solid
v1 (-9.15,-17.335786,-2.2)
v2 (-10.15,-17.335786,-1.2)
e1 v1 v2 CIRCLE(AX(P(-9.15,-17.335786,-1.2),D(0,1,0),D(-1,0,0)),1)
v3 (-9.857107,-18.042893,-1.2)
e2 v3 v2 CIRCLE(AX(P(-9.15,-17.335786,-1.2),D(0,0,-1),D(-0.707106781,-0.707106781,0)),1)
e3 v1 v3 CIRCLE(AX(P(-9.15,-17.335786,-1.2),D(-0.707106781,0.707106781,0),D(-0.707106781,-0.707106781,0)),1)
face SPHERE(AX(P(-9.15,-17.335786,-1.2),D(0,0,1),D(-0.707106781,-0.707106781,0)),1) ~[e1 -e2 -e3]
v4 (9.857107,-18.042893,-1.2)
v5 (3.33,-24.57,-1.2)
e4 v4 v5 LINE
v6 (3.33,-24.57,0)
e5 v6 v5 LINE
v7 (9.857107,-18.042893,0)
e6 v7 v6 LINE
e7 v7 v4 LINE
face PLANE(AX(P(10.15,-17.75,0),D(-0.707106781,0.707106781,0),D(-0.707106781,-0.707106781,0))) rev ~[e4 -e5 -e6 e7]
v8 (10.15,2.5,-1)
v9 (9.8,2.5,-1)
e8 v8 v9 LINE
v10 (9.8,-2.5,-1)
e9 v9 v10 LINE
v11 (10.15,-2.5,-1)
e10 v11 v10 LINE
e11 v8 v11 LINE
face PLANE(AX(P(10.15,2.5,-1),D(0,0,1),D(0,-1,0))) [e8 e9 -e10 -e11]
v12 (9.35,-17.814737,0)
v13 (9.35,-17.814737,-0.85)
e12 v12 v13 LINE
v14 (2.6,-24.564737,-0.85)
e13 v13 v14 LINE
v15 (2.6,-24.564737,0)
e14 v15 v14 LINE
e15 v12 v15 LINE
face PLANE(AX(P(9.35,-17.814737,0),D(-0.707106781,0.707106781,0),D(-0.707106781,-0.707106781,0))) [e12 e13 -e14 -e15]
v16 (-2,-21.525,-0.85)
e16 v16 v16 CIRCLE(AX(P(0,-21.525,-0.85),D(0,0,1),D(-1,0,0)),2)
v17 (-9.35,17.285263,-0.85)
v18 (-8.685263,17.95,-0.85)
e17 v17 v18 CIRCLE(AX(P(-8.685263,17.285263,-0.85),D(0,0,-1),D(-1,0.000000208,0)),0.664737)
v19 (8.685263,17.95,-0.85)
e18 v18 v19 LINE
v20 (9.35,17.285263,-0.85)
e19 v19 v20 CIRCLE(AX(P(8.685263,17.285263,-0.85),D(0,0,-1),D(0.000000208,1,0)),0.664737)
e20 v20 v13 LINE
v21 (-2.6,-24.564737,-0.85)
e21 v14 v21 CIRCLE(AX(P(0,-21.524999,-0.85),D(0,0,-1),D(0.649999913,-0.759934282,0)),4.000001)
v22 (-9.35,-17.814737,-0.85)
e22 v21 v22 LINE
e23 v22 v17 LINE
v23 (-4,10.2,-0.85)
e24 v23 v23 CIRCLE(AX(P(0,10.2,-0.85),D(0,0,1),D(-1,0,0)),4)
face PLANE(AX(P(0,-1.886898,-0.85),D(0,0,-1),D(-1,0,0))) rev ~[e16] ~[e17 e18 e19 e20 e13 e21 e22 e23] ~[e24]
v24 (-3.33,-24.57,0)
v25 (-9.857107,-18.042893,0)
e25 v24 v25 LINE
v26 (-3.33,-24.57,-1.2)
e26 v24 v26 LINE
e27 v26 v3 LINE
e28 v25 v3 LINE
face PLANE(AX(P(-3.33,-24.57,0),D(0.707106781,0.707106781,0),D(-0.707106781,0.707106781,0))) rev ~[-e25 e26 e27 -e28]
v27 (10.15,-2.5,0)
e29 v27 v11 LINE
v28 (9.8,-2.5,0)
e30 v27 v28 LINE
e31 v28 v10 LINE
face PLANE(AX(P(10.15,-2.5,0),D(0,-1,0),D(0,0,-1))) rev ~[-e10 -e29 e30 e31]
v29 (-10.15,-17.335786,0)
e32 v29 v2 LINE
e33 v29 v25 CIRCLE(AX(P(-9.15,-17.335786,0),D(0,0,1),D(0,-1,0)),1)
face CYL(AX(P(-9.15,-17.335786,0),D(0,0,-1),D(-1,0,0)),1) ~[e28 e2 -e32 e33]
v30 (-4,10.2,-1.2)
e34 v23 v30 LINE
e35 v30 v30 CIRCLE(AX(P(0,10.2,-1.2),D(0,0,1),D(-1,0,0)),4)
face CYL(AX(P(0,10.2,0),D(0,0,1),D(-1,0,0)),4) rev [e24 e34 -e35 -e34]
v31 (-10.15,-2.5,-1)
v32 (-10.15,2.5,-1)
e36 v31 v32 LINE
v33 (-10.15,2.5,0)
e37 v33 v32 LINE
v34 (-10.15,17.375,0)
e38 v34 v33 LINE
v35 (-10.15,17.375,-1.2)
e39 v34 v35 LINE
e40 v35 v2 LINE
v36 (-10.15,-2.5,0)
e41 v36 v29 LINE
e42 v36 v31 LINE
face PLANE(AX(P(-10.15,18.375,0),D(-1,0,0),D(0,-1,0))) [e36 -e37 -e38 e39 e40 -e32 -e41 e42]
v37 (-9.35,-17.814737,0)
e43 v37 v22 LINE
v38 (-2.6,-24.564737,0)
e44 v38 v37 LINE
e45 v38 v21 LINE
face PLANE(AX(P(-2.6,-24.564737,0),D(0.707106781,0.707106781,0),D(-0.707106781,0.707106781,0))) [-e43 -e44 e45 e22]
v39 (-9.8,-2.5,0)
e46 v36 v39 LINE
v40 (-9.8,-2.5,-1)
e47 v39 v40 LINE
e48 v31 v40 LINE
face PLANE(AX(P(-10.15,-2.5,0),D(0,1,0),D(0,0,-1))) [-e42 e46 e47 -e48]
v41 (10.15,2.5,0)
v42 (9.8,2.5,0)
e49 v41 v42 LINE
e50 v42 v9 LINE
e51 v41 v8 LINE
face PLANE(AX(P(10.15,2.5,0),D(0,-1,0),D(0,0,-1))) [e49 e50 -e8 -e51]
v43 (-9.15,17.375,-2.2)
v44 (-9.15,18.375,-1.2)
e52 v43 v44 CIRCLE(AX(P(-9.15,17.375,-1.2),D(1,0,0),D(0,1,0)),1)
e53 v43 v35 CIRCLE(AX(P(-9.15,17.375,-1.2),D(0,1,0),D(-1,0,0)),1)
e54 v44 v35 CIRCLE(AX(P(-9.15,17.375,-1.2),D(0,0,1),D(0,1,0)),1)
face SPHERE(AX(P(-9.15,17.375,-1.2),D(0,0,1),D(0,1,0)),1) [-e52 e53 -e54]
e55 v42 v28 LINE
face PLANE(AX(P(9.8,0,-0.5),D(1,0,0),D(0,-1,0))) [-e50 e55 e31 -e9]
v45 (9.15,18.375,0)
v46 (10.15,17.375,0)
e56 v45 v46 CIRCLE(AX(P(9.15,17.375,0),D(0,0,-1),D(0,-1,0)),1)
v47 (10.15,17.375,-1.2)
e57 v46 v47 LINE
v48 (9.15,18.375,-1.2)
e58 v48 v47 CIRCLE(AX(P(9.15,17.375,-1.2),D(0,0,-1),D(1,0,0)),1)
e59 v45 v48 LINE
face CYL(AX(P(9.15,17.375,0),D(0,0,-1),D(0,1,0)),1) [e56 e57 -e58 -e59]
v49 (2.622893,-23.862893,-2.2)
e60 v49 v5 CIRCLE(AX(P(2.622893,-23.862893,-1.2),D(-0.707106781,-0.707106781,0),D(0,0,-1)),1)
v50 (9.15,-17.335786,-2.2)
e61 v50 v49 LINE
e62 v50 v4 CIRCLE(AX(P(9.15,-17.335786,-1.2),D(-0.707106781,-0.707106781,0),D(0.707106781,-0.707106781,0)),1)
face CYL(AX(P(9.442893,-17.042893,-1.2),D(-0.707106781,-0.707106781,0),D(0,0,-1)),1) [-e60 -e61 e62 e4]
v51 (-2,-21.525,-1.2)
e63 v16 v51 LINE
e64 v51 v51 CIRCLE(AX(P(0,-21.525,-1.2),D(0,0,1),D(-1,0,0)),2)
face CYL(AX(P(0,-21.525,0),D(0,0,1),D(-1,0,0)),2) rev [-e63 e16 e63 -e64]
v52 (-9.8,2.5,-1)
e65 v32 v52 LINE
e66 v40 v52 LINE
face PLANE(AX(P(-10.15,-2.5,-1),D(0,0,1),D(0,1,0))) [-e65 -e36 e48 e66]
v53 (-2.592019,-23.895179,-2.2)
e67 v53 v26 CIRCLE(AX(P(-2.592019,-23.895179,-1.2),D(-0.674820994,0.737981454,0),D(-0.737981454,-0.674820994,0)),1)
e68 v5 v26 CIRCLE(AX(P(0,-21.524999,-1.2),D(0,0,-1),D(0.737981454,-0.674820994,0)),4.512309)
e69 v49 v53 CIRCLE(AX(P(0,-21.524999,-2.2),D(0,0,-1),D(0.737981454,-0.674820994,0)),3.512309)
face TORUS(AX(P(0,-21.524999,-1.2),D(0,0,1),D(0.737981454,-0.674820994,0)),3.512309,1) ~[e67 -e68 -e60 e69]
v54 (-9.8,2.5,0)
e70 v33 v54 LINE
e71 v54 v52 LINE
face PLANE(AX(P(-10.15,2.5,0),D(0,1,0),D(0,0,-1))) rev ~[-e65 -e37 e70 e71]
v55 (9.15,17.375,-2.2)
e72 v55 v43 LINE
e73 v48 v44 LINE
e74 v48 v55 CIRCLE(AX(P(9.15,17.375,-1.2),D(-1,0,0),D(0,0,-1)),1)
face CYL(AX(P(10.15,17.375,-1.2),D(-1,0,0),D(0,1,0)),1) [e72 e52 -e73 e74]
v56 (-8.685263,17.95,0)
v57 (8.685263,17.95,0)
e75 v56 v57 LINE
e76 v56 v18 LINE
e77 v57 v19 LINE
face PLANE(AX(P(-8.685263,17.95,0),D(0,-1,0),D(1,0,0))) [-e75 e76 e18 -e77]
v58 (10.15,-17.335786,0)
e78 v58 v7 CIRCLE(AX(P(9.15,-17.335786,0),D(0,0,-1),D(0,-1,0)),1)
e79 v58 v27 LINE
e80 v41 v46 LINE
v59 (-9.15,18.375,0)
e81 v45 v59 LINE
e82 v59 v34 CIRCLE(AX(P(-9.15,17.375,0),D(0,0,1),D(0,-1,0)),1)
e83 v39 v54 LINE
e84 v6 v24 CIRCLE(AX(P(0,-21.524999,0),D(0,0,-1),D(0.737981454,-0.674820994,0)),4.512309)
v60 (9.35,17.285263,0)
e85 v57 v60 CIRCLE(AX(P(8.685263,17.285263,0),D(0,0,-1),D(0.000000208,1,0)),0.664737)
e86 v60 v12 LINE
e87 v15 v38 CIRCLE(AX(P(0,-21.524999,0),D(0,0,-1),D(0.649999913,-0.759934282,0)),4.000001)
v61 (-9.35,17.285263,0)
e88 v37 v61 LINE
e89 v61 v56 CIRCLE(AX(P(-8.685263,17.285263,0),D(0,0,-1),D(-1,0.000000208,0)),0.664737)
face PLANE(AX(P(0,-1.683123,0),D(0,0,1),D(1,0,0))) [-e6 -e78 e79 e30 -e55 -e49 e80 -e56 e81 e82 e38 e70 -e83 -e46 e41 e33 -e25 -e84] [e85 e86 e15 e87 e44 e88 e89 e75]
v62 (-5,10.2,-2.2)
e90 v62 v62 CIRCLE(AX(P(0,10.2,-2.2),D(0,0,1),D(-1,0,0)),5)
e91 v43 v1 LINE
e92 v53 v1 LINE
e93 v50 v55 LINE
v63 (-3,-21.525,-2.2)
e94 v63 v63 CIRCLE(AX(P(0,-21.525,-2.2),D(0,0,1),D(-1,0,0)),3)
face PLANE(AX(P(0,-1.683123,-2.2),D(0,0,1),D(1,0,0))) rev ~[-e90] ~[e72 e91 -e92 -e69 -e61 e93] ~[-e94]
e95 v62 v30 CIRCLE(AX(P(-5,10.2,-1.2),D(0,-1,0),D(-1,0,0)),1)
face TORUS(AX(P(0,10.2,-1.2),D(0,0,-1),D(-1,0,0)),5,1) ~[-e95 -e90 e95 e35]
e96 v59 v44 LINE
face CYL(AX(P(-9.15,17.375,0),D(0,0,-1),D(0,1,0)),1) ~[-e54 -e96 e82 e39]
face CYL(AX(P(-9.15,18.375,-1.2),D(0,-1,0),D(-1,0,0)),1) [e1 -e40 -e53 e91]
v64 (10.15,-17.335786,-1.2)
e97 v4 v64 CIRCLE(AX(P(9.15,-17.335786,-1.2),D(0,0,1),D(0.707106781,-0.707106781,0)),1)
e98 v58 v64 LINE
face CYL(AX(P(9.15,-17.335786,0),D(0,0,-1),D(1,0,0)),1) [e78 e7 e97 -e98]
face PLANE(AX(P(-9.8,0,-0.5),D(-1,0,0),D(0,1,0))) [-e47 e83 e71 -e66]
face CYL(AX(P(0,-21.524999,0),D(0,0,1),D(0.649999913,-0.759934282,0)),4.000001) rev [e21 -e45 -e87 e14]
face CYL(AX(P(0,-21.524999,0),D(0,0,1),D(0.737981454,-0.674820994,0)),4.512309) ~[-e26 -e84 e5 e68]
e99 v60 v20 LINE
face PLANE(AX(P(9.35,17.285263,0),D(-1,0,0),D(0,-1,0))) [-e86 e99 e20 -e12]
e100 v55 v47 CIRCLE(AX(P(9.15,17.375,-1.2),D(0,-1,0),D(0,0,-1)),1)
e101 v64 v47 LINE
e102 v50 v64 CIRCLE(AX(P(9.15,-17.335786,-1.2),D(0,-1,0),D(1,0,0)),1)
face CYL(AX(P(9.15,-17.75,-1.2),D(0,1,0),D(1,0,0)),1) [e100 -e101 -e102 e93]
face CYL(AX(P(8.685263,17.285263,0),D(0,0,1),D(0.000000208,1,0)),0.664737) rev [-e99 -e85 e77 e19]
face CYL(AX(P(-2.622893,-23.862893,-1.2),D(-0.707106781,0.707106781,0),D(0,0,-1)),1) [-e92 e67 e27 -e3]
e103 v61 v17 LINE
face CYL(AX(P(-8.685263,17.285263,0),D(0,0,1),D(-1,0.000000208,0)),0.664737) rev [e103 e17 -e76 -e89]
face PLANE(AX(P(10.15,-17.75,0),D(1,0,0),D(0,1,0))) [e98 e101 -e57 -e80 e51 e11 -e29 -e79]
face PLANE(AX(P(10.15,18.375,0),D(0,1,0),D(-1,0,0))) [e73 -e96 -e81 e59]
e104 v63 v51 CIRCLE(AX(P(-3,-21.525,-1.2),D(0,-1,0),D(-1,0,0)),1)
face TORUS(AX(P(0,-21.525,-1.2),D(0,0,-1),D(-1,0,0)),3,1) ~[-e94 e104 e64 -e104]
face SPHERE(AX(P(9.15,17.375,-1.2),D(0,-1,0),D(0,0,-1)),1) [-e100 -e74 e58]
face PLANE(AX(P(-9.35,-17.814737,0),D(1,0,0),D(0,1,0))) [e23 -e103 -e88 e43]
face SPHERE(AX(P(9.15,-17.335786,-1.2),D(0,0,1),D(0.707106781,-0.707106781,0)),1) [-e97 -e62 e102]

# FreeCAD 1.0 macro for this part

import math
import FreeCAD as App
import Part
import Sketcher
from FreeCAD import Vector


def edges_at(feature, points):
    """Names of the edges that pass closest to the given points."""
    edges = feature.Shape.Edges
    near = lambda p: min(range(len(edges)), key=lambda i: edges[i].distToShape(Part.Vertex(*p))[0])
    return sorted({f"Edge{near(p) + 1}" for p in points})

doc = App.newDocument("Part")
body = doc.addObject("PartDesign::Body", "Body")

# Sketch on XY plane
sketch1 = body.newObject("Sketcher::SketchObject", "Sketch")
sketch1.AttachmentSupport = (doc.getObject("XY_Plane"), [""])
sketch1.MapMode = "FlatFace"
sketch1.addGeometry([
    Part.LineSegment(Vector(10.2, 18.4, 0), Vector(-10.2, 18.4, 0)),  # 0
    Part.LineSegment(Vector(-10.2, 18.4, 0), Vector(-10.2, -17.8, 0)),  # 1
    Part.LineSegment(Vector(-10.2, -17.8, 0), Vector(-3.3, -24.6, 0)),  # 2
    Part.ArcOfCircle(Part.Circle(Vector(0, -21.5, 0), Vector(0, 0, 1), 4.5), math.radians(-138), math.radians(-42)),  # 3
    Part.LineSegment(Vector(3.3, -24.6, 0), Vector(10.2, -17.8, 0)),  # 4
    Part.LineSegment(Vector(10.2, -17.8, 0), Vector(10.2, 18.4, 0)),  # 5
], False)
sketch1.addConstraint([
    Sketcher.Constraint("Coincident", 0, 2, 1, 1),
    Sketcher.Constraint("Coincident", 1, 2, 2, 1),
    Sketcher.Constraint("Coincident", 2, 2, 3, 1),
    Sketcher.Constraint("Coincident", 3, 2, 4, 1),
    Sketcher.Constraint("Coincident", 4, 2, 5, 1),
    Sketcher.Constraint("Coincident", 5, 2, 0, 1),
    Sketcher.Constraint("Horizontal", 0),
    Sketcher.Constraint("Vertical", 1),
    Sketcher.Constraint("Vertical", 5),
    Sketcher.Constraint("Symmetric", 2, 2, 3, 2, -2),
    Sketcher.Constraint("Symmetric", 1, 2, 4, 2, -2),
    Sketcher.Constraint("Perpendicular", 2, 4),
    Sketcher.Constraint("DistanceX", 0, 2, 0, 1, 20.3),
    Sketcher.Constraint("DistanceY", 3, 3, 0, 2, 39.899999),
    Sketcher.Constraint("DistanceY", 1, 2, 1, 1, 36.125),
    Sketcher.Constraint("DistanceY", 1, 2, -1, 1, 17.75),
    Sketcher.Constraint("DistanceX", 2, 2, -1, 1, 3.33),
])
pad1 = body.newObject("PartDesign::Pad", "Pad")
pad1.Profile = sketch1
pad1.Length = 2.2

# Sketch on XY plane
sketch2 = body.newObject("Sketcher::SketchObject", "Sketch001")
sketch2.AttachmentSupport = (doc.getObject("XY_Plane"), [""])
sketch2.MapMode = "FlatFace"
sketch2.addGeometry(Part.Circle(Vector(0, 10.2, 0), Vector(0, 0, 1), 4), False)
sketch2.addConstraint([
    Sketcher.Constraint("PointOnObject", 0, 3, -2),
    Sketcher.Constraint("Diameter", 0, 8.0),
    Sketcher.Constraint("DistanceY", -1, 1, 0, 3, 10.2),
])
pocket1 = body.newObject("PartDesign::Pocket", "Pocket")
pocket1.Profile = sketch2
pocket1.Length = 5
pocket1.Reversed = True

# Sketch on XY plane
sketch3 = body.newObject("Sketcher::SketchObject", "Sketch002")
sketch3.AttachmentSupport = (doc.getObject("XY_Plane"), [""])
sketch3.MapMode = "FlatFace"
sketch3.addGeometry(Part.Circle(Vector(0, -21.5, 0), Vector(0, 0, 1), 2), False)
sketch3.addConstraint([
    Sketcher.Constraint("PointOnObject", 0, 3, -2),
    Sketcher.Constraint("Diameter", 0, 4.0),
    Sketcher.Constraint("DistanceY", 0, 3, -1, 1, 21.525),
])
pocket2 = body.newObject("PartDesign::Pocket", "Pocket001")
pocket2.Profile = sketch3
pocket2.Length = 5
pocket2.Reversed = True

# Sketch on XY plane
sketch4 = body.newObject("Sketcher::SketchObject", "Sketch003")
sketch4.AttachmentSupport = (doc.getObject("XY_Plane"), [""])
sketch4.MapMode = "FlatFace"
sketch4.addGeometry([
    Part.LineSegment(Vector(-9.3, 17.3, 0), Vector(-9.3, -17.8, 0)),  # 0
    Part.LineSegment(Vector(-9.3, -17.8, 0), Vector(-2.6, -24.6, 0)),  # 1
    Part.ArcOfCircle(Part.Circle(Vector(0, -21.5, 0), Vector(0, 0, 1), 4), math.radians(-131), math.radians(-49)),  # 2
    Part.LineSegment(Vector(2.6, -24.6, 0), Vector(9.3, -17.8, 0)),  # 3
    Part.LineSegment(Vector(9.3, -17.8, 0), Vector(9.3, 17.3, 0)),  # 4
    Part.ArcOfCircle(Part.Circle(Vector(8.7, 17.3, 0), Vector(0, 0, 1), 0.7), math.radians(0), math.radians(90)),  # 5
    Part.LineSegment(Vector(8.7, 17.9, 0), Vector(-8.7, 17.9, 0)),  # 6
    Part.ArcOfCircle(Part.Circle(Vector(-8.7, 17.3, 0), Vector(0, 0, 1), 0.7), math.radians(90), math.radians(180)),  # 7
], False)
sketch4.addConstraint([
    Sketcher.Constraint("Coincident", 0, 2, 1, 1),
    Sketcher.Constraint("Coincident", 1, 2, 2, 1),
    Sketcher.Constraint("Coincident", 2, 2, 3, 1),
    Sketcher.Constraint("Coincident", 3, 2, 4, 1),
    Sketcher.Constraint("Tangent", 4, 2, 5, 1),
    Sketcher.Constraint("Tangent", 5, 2, 6, 1),
    Sketcher.Constraint("Tangent", 6, 2, 7, 1),
    Sketcher.Constraint("Tangent", 7, 2, 0, 1),
    Sketcher.Constraint("Vertical", 0),
    Sketcher.Constraint("Vertical", 4),
    Sketcher.Constraint("Horizontal", 6),
    Sketcher.Constraint("Equal", 5, 7),
    Sketcher.Constraint("Symmetric", 1, 2, 2, 2, -2),
    Sketcher.Constraint("Symmetric", 0, 2, 3, 2, -2),
    Sketcher.Constraint("Perpendicular", 1, 3),
    Sketcher.Constraint("Radius", 2, 4.000001),
    Sketcher.Constraint("DistanceY", 0, 2, 0, 1, 35.1),
    Sketcher.Constraint("DistanceX", 1, 2, -1, 1, 2.6),
    Sketcher.Constraint("DistanceX", 0, 2, 3, 2, 18.7),
    Sketcher.Constraint("DistanceY", -1, 1, 5, 2, 17.95),
    Sketcher.Constraint("DistanceY", 2, 3, -1, 1, 21.524999),
])
pocket3 = body.newObject("PartDesign::Pocket", "Pocket002")
pocket3.Profile = sketch4
pocket3.Length = 0.85
pocket3.Reversed = True

# Sketch on YZ plane
sketch5 = body.newObject("Sketcher::SketchObject", "Sketch004")
sketch5.AttachmentSupport = (doc.getObject("YZ_Plane"), [""])
sketch5.MapMode = "FlatFace"
sketch5.AttachmentOffset = App.Placement(Vector(0, 0, -9.35), App.Rotation())
sketch5.addGeometry([
    Part.LineSegment(Vector(-9.8, -1.5, 0), Vector(-9.8, -2.1, 0)),  # 0
    Part.LineSegment(Vector(-9.8, -2.1, 0), Vector(-9.45, -2.1, 0)),  # 1
    Part.LineSegment(Vector(-9.45, -2.1, 0), Vector(-9.45, -1.5, 0)),  # 2
    Part.LineSegment(Vector(-9.45, -1.5, 0), Vector(-9.8, -1.5, 0)),  # 3
    Part.LineSegment(Vector(9.45, -1.5, 0), Vector(9.45, -2.1, 0)),  # 4
    Part.LineSegment(Vector(9.45, -2.1, 0), Vector(9.8, -2.1, 0)),  # 5
    Part.LineSegment(Vector(9.8, -2.1, 0), Vector(9.8, -1.5, 0)),  # 6
    Part.LineSegment(Vector(9.8, -1.5, 0), Vector(9.45, -1.5, 0)),  # 7
], False)
sketch5.addConstraint([
    Sketcher.Constraint("Coincident", 0, 2, 1, 1),
    Sketcher.Constraint("Coincident", 1, 2, 2, 1),
    Sketcher.Constraint("Coincident", 2, 2, 3, 1),
    Sketcher.Constraint("Coincident", 3, 2, 0, 1),
    Sketcher.Constraint("Coincident", 4, 2, 5, 1),
    Sketcher.Constraint("Coincident", 5, 2, 6, 1),
    Sketcher.Constraint("Coincident", 6, 2, 7, 1),
    Sketcher.Constraint("Coincident", 7, 2, 4, 1),
    Sketcher.Constraint("Vertical", 0),
    Sketcher.Constraint("Horizontal", 1),
    Sketcher.Constraint("Vertical", 2),
    Sketcher.Constraint("Horizontal", 3),
    Sketcher.Constraint("Vertical", 4),
    Sketcher.Constraint("Horizontal", 5),
    Sketcher.Constraint("Vertical", 6),
    Sketcher.Constraint("Horizontal", 7),
    Sketcher.Constraint("Symmetric", 1, 2, 4, 2, -2),
    Sketcher.Constraint("Symmetric", 3, 2, 6, 2, -2),
    Sketcher.Constraint("DistanceY", 0, 2, 0, 1, 0.6),
    Sketcher.Constraint("DistanceX", 1, 1, 1, 2, 0.35),
    Sketcher.Constraint("DistanceX", 0, 2, -1, 1, 9.8),
    Sketcher.Constraint("DistanceY", 0, 2, -1, 1, 2.1),
])
pocket4 = body.newObject("PartDesign::Pocket", "Pocket003")
pocket4.Profile = sketch5
pocket4.Length = 25
doc.recompute()

fillet = body.newObject("PartDesign::Fillet", "Fillet")
fillet.Base = (pocket4, edges_at(pocket4, [
    (10.15, -17.75, 1.1),
    (10.15, 18.375, 1.1),
    (-6.74, -21.16, 2.2),
    (-10.15, 0.312, 2.2),
    (0, -26.037, 2.2),
    (0, 18.375, 2.2),
    (6.74, -21.16, 2.2),
    (10.15, 0.312, 2.2),
    (-2, -21.525, 2.2),
    (-4, 10.2, 2.2),
    (-10.15, 18.375, 1.1),
    (-10.15, -17.75, 1.1),
]))
fillet.Radius = 1

# Sketch on YZ plane
sketch6 = body.newObject("Sketcher::SketchObject", "Sketch005")
sketch6.AttachmentSupport = (doc.getObject("YZ_Plane"), [""])
sketch6.MapMode = "FlatFace"
sketch6.AttachmentOffset = App.Placement(Vector(0, 0, -10.15), App.Rotation())
sketch6.addGeometry([
    Part.LineSegment(Vector(2.5, 1, 0), Vector(2.5, 0, 0)),
    Part.LineSegment(Vector(2.5, 0, 0), Vector(-2.5, 0, 0)),
    Part.LineSegment(Vector(-2.5, 0, 0), Vector(-2.5, 1, 0)),
    Part.LineSegment(Vector(-2.5, 1, 0), Vector(2.5, 1, 0)),
], False)
sketch6.addConstraint([
    Sketcher.Constraint("Coincident", 0, 2, 1, 1),
    Sketcher.Constraint("Coincident", 1, 2, 2, 1),
    Sketcher.Constraint("Coincident", 2, 2, 3, 1),
    Sketcher.Constraint("Coincident", 3, 2, 0, 1),
    Sketcher.Constraint("Vertical", 0),
    Sketcher.Constraint("Horizontal", 1),
    Sketcher.Constraint("Vertical", 2),
    Sketcher.Constraint("Horizontal", 3),
    Sketcher.Constraint("Symmetric", 0, 2, 1, 2, -1, 1),
    Sketcher.Constraint("DistanceX", 1, 2, 1, 1, 5.0),
    Sketcher.Constraint("DistanceY", 0, 2, 0, 1, 1.0),
])
pocket5 = body.newObject("PartDesign::Pocket", "Pocket004")
pocket5.Profile = sketch6
pocket5.Length = 0.35
pocket5.Reversed = True

# Sketch on YZ plane
sketch7 = body.newObject("Sketcher::SketchObject", "Sketch006")
sketch7.AttachmentSupport = (doc.getObject("YZ_Plane"), [""])
sketch7.MapMode = "FlatFace"
sketch7.AttachmentOffset = App.Placement(Vector(0, 0, 10.15), App.Rotation())
sketch7.addGeometry([
    Part.LineSegment(Vector(-2.5, 1, 0), Vector(-2.5, 0, 0)),
    Part.LineSegment(Vector(-2.5, 0, 0), Vector(2.5, 0, 0)),
    Part.LineSegment(Vector(2.5, 0, 0), Vector(2.5, 1, 0)),
    Part.LineSegment(Vector(2.5, 1, 0), Vector(-2.5, 1, 0)),
], False)
sketch7.addConstraint([
    Sketcher.Constraint("Coincident", 0, 2, 1, 1),
    Sketcher.Constraint("Coincident", 1, 2, 2, 1),
    Sketcher.Constraint("Coincident", 2, 2, 3, 1),
    Sketcher.Constraint("Coincident", 3, 2, 0, 1),
    Sketcher.Constraint("Vertical", 0),
    Sketcher.Constraint("Horizontal", 1),
    Sketcher.Constraint("Vertical", 2),
    Sketcher.Constraint("Horizontal", 3),
    Sketcher.Constraint("Symmetric", 0, 2, 1, 2, -1, 1),
    Sketcher.Constraint("DistanceX", 1, 1, 1, 2, 5.0),
    Sketcher.Constraint("DistanceY", 0, 2, 0, 1, 1.0),
])
pocket6 = body.newObject("PartDesign::Pocket", "Pocket005")
pocket6.Profile = sketch7
pocket6.Length = 0.35
body2 = doc.addObject("PartDesign::Body", "Body001")
doc.recompute()

body.Placement = App.Placement(Vector(0, 0, 0), App.Rotation(Vector(0, 1, 0), 180))
boolean = body2.newObject("PartDesign::Boolean", "Boolean")
boolean.Type = "Fuse"
boolean.addObjects([body])

doc.recompute()
